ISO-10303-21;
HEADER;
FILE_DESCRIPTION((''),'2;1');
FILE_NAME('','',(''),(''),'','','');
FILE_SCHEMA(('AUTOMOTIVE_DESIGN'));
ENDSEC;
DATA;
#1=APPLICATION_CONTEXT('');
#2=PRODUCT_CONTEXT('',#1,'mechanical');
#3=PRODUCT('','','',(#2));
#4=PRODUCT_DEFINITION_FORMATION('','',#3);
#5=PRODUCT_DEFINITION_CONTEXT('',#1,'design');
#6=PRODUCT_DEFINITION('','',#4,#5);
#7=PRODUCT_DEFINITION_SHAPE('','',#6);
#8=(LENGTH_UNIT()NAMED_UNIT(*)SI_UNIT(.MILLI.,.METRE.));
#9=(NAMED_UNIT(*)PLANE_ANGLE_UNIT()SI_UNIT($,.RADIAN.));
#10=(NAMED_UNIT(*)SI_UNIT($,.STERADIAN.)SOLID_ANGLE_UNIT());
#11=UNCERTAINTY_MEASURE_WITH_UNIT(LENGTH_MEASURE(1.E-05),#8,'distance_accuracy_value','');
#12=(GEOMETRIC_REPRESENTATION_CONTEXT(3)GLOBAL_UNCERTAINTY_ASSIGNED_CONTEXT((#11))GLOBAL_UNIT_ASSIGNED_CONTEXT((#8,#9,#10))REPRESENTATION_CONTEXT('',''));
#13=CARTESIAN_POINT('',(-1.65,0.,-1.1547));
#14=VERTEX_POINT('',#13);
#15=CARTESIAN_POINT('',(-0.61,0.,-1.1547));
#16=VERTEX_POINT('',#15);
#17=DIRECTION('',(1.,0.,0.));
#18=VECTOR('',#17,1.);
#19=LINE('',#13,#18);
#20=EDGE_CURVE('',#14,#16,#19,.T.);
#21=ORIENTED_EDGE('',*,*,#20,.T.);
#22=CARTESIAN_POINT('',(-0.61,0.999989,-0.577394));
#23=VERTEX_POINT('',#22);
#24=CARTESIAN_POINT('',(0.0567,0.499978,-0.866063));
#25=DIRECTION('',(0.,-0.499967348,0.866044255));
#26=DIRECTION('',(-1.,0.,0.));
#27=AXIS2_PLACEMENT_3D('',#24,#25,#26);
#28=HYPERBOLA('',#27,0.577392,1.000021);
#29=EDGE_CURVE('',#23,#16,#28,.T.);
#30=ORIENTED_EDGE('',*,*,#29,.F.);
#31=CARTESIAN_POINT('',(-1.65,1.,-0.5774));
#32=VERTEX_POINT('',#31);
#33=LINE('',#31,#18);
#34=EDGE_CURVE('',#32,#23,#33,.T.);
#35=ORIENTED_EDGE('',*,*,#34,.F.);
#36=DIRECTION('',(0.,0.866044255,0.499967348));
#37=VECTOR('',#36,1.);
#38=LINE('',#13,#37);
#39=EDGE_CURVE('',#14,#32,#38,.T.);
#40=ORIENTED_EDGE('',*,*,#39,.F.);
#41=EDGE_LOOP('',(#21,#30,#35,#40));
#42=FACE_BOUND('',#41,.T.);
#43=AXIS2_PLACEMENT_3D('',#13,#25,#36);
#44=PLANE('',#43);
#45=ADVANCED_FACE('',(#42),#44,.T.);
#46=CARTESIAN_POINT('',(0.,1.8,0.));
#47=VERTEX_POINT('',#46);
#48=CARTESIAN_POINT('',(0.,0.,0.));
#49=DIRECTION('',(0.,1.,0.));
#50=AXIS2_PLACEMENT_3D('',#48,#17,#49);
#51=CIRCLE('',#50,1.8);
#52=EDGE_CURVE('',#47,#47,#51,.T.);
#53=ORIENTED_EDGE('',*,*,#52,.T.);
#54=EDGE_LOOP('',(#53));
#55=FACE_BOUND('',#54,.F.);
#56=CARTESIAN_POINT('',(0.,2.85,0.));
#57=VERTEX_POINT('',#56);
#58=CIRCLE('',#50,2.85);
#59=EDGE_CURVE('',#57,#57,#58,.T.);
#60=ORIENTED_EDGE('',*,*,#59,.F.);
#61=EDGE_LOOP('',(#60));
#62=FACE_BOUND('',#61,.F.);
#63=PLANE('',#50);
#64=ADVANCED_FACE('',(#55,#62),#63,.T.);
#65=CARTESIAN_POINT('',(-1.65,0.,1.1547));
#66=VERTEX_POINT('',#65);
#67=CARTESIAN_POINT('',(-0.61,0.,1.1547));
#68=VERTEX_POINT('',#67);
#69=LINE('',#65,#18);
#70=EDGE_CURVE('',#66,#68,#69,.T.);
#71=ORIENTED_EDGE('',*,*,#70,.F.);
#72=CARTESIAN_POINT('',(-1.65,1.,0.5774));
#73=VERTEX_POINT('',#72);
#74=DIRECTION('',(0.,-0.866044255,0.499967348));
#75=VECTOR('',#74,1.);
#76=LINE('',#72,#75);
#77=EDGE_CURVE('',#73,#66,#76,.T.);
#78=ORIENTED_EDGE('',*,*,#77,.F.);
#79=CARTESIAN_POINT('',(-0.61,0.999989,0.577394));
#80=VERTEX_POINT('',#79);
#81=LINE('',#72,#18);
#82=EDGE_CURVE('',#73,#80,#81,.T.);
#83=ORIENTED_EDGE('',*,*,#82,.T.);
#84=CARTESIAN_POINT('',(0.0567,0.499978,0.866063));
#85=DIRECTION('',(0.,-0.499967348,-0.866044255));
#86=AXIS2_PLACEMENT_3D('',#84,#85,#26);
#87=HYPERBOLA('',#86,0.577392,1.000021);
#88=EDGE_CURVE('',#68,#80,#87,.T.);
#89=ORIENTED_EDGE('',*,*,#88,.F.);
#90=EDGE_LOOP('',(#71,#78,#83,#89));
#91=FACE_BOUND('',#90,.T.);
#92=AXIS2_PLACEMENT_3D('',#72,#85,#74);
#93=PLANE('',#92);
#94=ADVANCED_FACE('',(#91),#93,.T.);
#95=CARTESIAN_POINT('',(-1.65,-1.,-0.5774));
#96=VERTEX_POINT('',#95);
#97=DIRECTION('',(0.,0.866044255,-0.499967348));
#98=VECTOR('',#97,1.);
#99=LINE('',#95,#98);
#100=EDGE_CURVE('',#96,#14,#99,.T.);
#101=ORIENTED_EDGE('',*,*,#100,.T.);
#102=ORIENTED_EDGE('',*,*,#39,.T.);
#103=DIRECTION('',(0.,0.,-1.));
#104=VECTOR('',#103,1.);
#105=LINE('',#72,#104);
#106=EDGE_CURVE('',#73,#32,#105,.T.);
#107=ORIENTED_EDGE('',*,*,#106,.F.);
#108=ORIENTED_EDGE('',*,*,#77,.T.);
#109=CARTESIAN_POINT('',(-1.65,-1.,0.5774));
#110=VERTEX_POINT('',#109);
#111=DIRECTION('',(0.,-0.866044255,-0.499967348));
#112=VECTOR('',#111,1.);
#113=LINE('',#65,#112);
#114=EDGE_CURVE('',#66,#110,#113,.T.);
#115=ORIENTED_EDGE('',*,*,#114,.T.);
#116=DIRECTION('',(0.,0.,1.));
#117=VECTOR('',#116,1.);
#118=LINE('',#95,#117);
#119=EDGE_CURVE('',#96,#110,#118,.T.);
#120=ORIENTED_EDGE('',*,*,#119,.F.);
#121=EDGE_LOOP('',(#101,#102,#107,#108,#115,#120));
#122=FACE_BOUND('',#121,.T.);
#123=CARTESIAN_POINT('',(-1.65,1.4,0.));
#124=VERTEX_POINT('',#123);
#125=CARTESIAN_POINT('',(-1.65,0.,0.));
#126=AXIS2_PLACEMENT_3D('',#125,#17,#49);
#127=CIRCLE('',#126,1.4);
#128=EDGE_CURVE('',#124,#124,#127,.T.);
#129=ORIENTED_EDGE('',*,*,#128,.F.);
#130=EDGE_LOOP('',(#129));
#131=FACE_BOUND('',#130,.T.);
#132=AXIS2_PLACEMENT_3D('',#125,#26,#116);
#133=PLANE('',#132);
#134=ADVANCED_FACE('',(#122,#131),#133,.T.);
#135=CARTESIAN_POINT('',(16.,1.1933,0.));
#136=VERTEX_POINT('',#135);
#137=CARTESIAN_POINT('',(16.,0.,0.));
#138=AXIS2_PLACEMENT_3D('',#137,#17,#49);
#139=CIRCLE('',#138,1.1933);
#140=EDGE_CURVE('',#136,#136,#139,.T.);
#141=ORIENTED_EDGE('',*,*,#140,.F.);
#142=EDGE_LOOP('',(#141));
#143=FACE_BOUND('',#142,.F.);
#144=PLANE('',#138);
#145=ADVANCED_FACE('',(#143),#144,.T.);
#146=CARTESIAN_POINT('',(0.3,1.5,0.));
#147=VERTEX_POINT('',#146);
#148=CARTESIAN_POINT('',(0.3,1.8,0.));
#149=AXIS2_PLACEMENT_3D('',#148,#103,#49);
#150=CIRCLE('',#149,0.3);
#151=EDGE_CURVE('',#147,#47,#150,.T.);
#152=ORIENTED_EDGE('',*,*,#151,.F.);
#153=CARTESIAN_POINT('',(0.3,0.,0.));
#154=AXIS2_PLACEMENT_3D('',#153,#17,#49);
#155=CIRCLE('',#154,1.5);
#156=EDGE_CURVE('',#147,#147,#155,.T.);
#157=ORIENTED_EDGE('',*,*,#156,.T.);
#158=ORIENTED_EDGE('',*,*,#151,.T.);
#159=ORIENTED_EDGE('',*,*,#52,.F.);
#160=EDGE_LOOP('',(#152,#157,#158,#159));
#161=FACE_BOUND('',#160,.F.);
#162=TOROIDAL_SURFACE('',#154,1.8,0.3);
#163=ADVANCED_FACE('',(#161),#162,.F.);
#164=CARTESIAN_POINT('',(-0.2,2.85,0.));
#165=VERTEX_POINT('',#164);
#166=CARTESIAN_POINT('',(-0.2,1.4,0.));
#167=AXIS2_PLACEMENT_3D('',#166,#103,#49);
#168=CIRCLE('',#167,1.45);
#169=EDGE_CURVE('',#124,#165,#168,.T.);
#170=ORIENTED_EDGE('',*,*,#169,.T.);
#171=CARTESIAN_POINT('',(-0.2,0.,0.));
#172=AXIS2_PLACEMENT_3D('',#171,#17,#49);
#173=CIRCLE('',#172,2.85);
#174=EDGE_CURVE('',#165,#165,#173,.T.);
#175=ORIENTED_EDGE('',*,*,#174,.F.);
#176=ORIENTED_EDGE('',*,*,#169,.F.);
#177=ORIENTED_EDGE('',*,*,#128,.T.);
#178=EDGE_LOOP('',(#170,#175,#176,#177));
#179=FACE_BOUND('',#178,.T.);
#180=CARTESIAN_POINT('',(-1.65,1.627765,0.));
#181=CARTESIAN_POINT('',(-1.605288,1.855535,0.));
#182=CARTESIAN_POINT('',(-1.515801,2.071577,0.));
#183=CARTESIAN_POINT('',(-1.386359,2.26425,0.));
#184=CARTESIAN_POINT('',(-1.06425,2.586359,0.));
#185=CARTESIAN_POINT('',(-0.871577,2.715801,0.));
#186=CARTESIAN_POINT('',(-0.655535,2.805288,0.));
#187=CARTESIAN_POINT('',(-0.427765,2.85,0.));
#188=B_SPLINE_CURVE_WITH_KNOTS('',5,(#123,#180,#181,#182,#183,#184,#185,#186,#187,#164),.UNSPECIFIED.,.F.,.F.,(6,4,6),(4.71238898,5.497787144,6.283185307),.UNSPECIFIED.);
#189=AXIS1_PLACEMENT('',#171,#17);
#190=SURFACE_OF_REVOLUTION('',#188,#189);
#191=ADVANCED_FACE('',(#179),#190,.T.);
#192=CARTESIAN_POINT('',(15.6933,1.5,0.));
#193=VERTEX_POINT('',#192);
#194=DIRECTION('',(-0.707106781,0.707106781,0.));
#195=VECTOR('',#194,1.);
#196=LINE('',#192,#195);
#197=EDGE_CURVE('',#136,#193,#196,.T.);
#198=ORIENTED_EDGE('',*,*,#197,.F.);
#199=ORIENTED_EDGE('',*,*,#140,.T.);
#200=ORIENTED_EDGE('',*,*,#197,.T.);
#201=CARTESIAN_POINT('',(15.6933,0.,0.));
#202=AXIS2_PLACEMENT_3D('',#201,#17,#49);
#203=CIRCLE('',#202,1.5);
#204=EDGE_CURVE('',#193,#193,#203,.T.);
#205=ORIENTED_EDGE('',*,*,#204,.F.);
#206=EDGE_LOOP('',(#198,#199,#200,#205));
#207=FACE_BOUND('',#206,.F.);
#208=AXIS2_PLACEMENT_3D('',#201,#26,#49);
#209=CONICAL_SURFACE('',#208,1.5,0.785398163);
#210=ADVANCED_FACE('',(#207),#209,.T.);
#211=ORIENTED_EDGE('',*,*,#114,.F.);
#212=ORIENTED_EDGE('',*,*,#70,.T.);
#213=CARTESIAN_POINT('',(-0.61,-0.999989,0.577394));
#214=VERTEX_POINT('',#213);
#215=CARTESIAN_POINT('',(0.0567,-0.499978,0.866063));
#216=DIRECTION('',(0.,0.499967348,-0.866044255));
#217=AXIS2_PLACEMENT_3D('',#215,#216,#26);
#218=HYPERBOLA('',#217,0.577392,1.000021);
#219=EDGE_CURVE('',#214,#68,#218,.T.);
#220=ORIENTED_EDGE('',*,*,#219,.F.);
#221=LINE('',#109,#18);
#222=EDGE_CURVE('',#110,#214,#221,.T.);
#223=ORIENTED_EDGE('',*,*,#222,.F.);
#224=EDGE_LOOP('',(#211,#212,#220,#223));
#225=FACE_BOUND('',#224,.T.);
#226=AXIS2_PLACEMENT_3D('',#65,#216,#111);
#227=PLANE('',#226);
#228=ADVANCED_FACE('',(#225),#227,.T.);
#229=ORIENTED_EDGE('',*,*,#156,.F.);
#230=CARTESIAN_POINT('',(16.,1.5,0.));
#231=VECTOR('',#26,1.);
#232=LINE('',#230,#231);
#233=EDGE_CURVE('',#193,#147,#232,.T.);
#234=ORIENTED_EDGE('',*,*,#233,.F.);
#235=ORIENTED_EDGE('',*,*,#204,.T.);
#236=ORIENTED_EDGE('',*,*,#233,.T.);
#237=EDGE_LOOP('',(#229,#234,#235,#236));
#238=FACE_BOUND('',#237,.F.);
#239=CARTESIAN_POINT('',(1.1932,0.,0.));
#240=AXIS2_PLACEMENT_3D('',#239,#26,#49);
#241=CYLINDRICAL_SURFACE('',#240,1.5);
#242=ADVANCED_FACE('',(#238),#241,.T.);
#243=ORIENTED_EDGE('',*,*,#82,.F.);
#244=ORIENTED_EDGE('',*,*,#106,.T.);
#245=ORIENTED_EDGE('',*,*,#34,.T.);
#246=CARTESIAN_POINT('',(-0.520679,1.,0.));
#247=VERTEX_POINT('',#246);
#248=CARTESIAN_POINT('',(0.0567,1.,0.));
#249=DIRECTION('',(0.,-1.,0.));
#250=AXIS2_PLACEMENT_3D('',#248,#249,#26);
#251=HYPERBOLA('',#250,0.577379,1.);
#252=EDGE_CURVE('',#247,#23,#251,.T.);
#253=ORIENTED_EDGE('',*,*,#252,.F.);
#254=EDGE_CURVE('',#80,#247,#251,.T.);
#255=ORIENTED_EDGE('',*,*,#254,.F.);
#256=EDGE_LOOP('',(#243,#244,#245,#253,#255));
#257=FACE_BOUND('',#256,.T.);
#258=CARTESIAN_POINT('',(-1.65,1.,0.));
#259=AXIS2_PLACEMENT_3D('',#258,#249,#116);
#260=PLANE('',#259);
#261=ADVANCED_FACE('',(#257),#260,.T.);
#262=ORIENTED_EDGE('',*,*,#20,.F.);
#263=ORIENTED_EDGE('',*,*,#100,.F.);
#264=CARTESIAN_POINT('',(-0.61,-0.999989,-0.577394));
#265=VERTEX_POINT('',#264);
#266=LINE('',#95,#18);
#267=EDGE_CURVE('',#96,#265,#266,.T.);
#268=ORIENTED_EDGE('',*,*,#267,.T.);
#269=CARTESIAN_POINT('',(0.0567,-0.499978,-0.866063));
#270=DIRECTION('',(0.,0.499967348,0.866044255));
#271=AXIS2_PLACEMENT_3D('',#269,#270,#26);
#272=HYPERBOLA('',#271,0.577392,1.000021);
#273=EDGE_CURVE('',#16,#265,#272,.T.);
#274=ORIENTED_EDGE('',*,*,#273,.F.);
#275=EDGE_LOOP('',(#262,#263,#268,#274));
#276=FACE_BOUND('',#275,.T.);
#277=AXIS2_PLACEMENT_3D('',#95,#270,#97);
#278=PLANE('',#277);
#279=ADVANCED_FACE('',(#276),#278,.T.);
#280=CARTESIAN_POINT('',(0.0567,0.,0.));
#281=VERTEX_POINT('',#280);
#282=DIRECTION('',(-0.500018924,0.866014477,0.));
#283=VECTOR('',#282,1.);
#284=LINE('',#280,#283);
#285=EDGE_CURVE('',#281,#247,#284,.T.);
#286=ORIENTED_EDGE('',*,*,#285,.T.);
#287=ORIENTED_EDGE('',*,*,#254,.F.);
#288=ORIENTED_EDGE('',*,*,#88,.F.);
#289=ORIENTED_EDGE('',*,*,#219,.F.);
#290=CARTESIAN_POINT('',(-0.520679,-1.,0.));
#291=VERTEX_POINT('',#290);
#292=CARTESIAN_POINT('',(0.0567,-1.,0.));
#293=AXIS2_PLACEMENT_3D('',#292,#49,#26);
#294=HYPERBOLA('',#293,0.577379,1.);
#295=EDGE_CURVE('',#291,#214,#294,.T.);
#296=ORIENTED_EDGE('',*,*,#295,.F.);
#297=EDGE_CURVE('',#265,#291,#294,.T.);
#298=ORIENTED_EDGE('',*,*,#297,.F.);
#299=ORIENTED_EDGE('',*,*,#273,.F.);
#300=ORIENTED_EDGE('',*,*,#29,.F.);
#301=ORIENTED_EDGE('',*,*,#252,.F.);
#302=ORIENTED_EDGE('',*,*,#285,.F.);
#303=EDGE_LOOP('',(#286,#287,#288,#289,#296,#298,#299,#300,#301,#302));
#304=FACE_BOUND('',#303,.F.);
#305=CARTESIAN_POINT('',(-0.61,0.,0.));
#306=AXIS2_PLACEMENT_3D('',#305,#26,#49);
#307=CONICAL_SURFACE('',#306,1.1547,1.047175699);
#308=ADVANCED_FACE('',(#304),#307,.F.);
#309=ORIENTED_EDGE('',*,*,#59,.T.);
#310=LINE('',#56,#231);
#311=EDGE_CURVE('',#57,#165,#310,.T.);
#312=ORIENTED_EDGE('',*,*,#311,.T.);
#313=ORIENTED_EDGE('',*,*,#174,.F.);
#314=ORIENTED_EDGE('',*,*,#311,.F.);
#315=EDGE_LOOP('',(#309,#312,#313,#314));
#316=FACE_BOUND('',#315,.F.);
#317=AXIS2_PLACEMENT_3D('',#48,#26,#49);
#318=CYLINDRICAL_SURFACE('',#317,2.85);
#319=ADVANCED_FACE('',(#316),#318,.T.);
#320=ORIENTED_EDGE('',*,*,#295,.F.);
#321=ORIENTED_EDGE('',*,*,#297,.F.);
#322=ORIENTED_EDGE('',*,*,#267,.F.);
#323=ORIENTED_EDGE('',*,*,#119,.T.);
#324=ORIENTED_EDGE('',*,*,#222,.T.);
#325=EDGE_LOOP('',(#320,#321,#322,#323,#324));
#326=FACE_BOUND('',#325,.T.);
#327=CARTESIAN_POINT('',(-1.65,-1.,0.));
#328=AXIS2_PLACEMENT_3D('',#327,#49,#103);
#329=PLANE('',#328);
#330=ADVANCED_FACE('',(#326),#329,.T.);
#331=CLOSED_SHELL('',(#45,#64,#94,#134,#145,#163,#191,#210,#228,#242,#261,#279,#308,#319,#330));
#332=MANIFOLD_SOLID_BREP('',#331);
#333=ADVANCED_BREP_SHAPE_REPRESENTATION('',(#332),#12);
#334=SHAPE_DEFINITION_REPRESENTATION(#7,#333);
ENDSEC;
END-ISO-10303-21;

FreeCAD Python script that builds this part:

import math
import FreeCAD as App
import Part
import Sketcher
Q = App.Units.Quantity


def edges_at(feature, points):
    """Names of the edges that pass closest to the given points."""
    edges = feature.Shape.Edges
    near = lambda p: min(range(len(edges)), key=lambda i: edges[i].distToShape(Part.Vertex(*p))[0])
    return sorted({f"Edge{near(p) + 1}" for p in points})


def add_polygon(sketch, points):
    """Adds a closed chain of lines whose ends are joined by coincident constraints."""
    first, n = sketch.GeometryCount, len(points)
    for a, b in zip(points, points[1:] + points[:1]):
        sketch.addGeometry(Part.LineSegment(App.Vector(*a, 0), App.Vector(*b, 0)), False)
    for i in range(n):
        sketch.addConstraint(Sketcher.Constraint("Coincident", first + i, 2, first + (i + 1) % n, 1))

doc = App.newDocument("Part")
params = doc.addObject("Spreadsheet::Sheet", "Params")
for row, (alias, value) in enumerate([
    ("sketch1_width", "16 mm"),
    ("sketch1_width2", "1.65 mm"),
    ("sketch1_width3", "1.04 mm"),
    ("sketch1_height", "1.5 mm"),
    ("sketch1_height2", "1.35 mm"),
    ("revolution_angle", "360 deg"),
    ("fillet_radius", "1.45 mm"),
    ("chamfer_size", "0.3067 mm"),
    ("chamfer_size2", "0.3067 mm"),
    ("fillet2_radius", "0.3 mm"),
], start=1):
    params.set(f"A{row}", alias)
    params.set(f"B{row}", "=" + value)
    params.setAlias(f"B{row}", alias)

body = doc.addObject("PartDesign::Body", "Body")

sketch1 = doc.addObject("Sketcher::SketchObject", "Sketch")
body.addObject(sketch1)
sketch1.AttachmentSupport = (doc.XY_Plane, [""])
sketch1.MapMode = "FlatFace"
add_polygon(sketch1, [(0.1, 0), (16, 0), (16, 1.5), (0, 1.5), (0, 2.9), (-1.6, 2.9), (-1.6, 1.2), (-0.6, 1.2)])
sketch1.addConstraint(Sketcher.Constraint("Horizontal", 0))
sketch1.addConstraint(Sketcher.Constraint("Vertical", 1))
sketch1.addConstraint(Sketcher.Constraint("Horizontal", 2))
sketch1.addConstraint(Sketcher.Constraint("Vertical", 3))
sketch1.addConstraint(Sketcher.Constraint("Horizontal", 4))
sketch1.addConstraint(Sketcher.Constraint("Vertical", 5))
sketch1.addConstraint(Sketcher.Constraint("Horizontal", 6))
sketch1.addConstraint(Sketcher.Constraint("PointOnObject", 0, 2, -1))
sketch1.addConstraint(Sketcher.Constraint("PointOnObject", 2, 2, -2))
sketch1.addConstraint(Sketcher.Constraint("DistanceX", 2, 2, 2, 1, Q("16 mm")))
sketch1.addConstraint(Sketcher.Constraint("DistanceX", 4, 2, 4, 1, Q("1.65 mm")))
sketch1.addConstraint(Sketcher.Constraint("DistanceX", 6, 1, 6, 2, Q("1.04 mm")))
sketch1.addConstraint(Sketcher.Constraint("DistanceY", 1, 1, 1, 2, Q("1.5 mm")))
sketch1.addConstraint(Sketcher.Constraint("DistanceY", 3, 1, 3, 2, Q("1.35 mm")))
sketch1.addConstraint(Sketcher.Constraint("DistanceX", 0, 1, 0, 2, Q("15.9433 mm")))
sketch1.addConstraint(Sketcher.Constraint("DistanceY", 5, 2, 5, 1, Q("1.6953 mm")))
sketch1.setExpression("Constraints[17]", "Params.sketch1_width")
sketch1.setExpression("Constraints[18]", "Params.sketch1_width2")
sketch1.setExpression("Constraints[19]", "Params.sketch1_width3")
sketch1.setExpression("Constraints[20]", "Params.sketch1_height")
sketch1.setExpression("Constraints[21]", "Params.sketch1_height2")
revolution = doc.addObject("PartDesign::Revolution", "Revolution")
body.addObject(revolution)
revolution.Profile = sketch1
revolution.ReferenceAxis = (sketch1, ["H_Axis"])
revolution.setExpression("Angle", "Params.revolution_angle")

sketch2 = doc.addObject("Sketcher::SketchObject", "Sketch001")
body.addObject(sketch2)
sketch2.AttachmentSupport = (doc.YZ_Plane, [""])
sketch2.MapMode = "FlatFace"
sketch2.AttachmentOffset = App.Placement(App.Vector(0, 0, -1.65), App.Rotation())
sketch2.addGeometry(Part.LineSegment(App.Vector(1, 0.6, 0), App.Vector(0, 1.2, 0)), False)
sketch2.addGeometry(Part.ArcOfCircle(Part.Circle(App.Vector(0, 0, 0), App.Vector(0, 0, 1), 1.2), math.radians(30), math.radians(90)), False)
sketch2.addGeometry(Part.ArcOfCircle(Part.Circle(App.Vector(0, 0, 0), App.Vector(0, 0, 1), 1.2), math.radians(90), math.radians(150)), False)
sketch2.addGeometry(Part.LineSegment(App.Vector(0, 1.2, 0), App.Vector(-1, 0.6, 0)), False)
sketch2.addGeometry(Part.ArcOfCircle(Part.Circle(App.Vector(0, 0, 0), App.Vector(0, 0, 1), 1.2), math.radians(-30), math.radians(30)), False)
sketch2.addGeometry(Part.LineSegment(App.Vector(1, 0.6, 0), App.Vector(1, -0.6, 0)), False)
sketch2.addGeometry(Part.LineSegment(App.Vector(-1, 0.6, 0), App.Vector(-1, -0.6, 0)), False)
sketch2.addGeometry(Part.ArcOfCircle(Part.Circle(App.Vector(0, 0, 0), App.Vector(0, 0, 1), 1.2), math.radians(150), math.radians(210)), False)
sketch2.addGeometry(Part.LineSegment(App.Vector(-1, -0.6, 0), App.Vector(0, -1.2, 0)), False)
sketch2.addGeometry(Part.ArcOfCircle(Part.Circle(App.Vector(0, 0, 0), App.Vector(0, 0, 1), 1.2), math.radians(-150), math.radians(-90)), False)
sketch2.addGeometry(Part.ArcOfCircle(Part.Circle(App.Vector(0, 0, 0), App.Vector(0, 0, 1), 1.2), math.radians(-90), math.radians(-30)), False)
sketch2.addGeometry(Part.LineSegment(App.Vector(0, -1.2, 0), App.Vector(1, -0.6, 0)), False)
sketch2.addConstraint(Sketcher.Constraint("Coincident", 0, 1, 1, 1))
sketch2.addConstraint(Sketcher.Constraint("Coincident", 1, 2, 0, 2))
sketch2.addConstraint(Sketcher.Constraint("Coincident", 2, 1, 3, 1))
sketch2.addConstraint(Sketcher.Constraint("Coincident", 3, 2, 2, 2))
sketch2.addConstraint(Sketcher.Constraint("Coincident", 4, 1, 5, 2))
sketch2.addConstraint(Sketcher.Constraint("Coincident", 5, 1, 4, 2))
sketch2.addConstraint(Sketcher.Constraint("Coincident", 6, 1, 7, 1))
sketch2.addConstraint(Sketcher.Constraint("Coincident", 7, 2, 6, 2))
sketch2.addConstraint(Sketcher.Constraint("Coincident", 8, 1, 9, 1))
sketch2.addConstraint(Sketcher.Constraint("Coincident", 9, 2, 8, 2))
sketch2.addConstraint(Sketcher.Constraint("Coincident", 10, 1, 11, 1))
sketch2.addConstraint(Sketcher.Constraint("Coincident", 11, 2, 10, 2))
sketch2.addConstraint(Sketcher.Constraint("Vertical", 5))
sketch2.addConstraint(Sketcher.Constraint("Vertical", 6))
sketch2.addConstraint(Sketcher.Constraint("Coincident", 1, 3, -1, 1))
sketch2.addConstraint(Sketcher.Constraint("Coincident", 2, 3, -1, 1))
sketch2.addConstraint(Sketcher.Constraint("Coincident", 4, 3, -1, 1))
sketch2.addConstraint(Sketcher.Constraint("Coincident", 7, 3, -1, 1))
sketch2.addConstraint(Sketcher.Constraint("Coincident", 9, 3, -1, 1))
sketch2.addConstraint(Sketcher.Constraint("Coincident", 10, 3, -1, 1))
sketch2.addConstraint(Sketcher.Constraint("Coincident", 2, 1, 1, 2))
sketch2.addConstraint(Sketcher.Constraint("Coincident", 5, 1, 0, 1))
sketch2.addConstraint(Sketcher.Constraint("Coincident", 6, 1, 3, 2))
sketch2.addConstraint(Sketcher.Constraint("Coincident", 8, 1, 7, 2))
sketch2.addConstraint(Sketcher.Constraint("Coincident", 10, 1, 9, 2))
sketch2.addConstraint(Sketcher.Constraint("PointOnObject", 1, 2, -2))
sketch2.addConstraint(Sketcher.Constraint("PointOnObject", 9, 2, -2))
sketch2.addConstraint(Sketcher.Constraint("Parallel", 0, 8))
sketch2.addConstraint(Sketcher.Constraint("Parallel", 3, 11))
sketch2.addConstraint(Sketcher.Constraint("DistanceX", -1, 1, 0, 1, Q("1 mm")))
sketch2.addConstraint(Sketcher.Constraint("Radius", 1, Q("1.1547 mm")))
pad1 = doc.addObject("PartDesign::Pad", "Pad")
body.addObject(pad1)
pad1.Profile = sketch2
pad1.Type = "UpToFirst"
doc.recompute()

fillet = doc.addObject("PartDesign::Fillet", "Fillet")
body.addObject(fillet)
fillet.Base = (pad1, edges_at(pad1, [(-1.65, -2.85, 0)]))
fillet.setExpression("Radius", "Params.fillet_radius")
doc.recompute()

chamfer = doc.addObject("PartDesign::Chamfer", "Chamfer")
body.addObject(chamfer)
chamfer.Base = (fillet, edges_at(fillet, [(16, -1.5, 0)]))
chamfer.ChamferType = "Two distances"
chamfer.setExpression("Size", "Params.chamfer_size")
chamfer.setExpression("Size2", "Params.chamfer_size2")
doc.recompute()

fillet2 = doc.addObject("PartDesign::Fillet", "Fillet001")
body.addObject(fillet2)
fillet2.Base = (chamfer, edges_at(chamfer, [(0, -1.5, 0)]))
fillet2.setExpression("Radius", "Params.fillet2_radius")

doc.recompute()
